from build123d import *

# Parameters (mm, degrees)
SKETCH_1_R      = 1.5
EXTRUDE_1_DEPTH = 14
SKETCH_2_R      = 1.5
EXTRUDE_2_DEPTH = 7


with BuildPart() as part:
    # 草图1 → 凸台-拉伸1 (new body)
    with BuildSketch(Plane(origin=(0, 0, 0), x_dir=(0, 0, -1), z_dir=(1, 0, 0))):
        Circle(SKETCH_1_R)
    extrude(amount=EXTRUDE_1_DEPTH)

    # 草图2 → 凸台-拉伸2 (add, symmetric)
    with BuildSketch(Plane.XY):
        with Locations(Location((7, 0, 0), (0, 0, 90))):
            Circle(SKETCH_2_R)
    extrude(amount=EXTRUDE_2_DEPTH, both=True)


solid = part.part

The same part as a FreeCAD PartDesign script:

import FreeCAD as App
import Part
import Sketcher
from FreeCAD import Vector
Q = App.Units.Quantity

doc = App.newDocument("Part")
params = doc.addObject("Spreadsheet::Sheet", "Params")
for row, (alias, value) in enumerate([
    ("sketch1_diameter", "3 mm"),
    ("pad1_length", "14 mm"),
    ("sketch2_diameter", "3 mm"),
    ("pad2_length", "14 mm"),
], start=1):
    params.set(f"A{row}", alias)
    params.set(f"B{row}", "=" + value)
    params.setAlias(f"B{row}", alias)

body = doc.addObject("PartDesign::Body", "Body")

# Sketch on YZ plane
sketch1 = body.newObject("Sketcher::SketchObject", "Sketch")
sketch1.AttachmentSupport = (doc.getObject("YZ_Plane"), [""])
sketch1.MapMode = "FlatFace"
sketch1.addGeometry(Part.Circle(Vector(0, 0, 0), Vector(0, 0, 1), 1.5), False)
sketch1.addConstraint([
    Sketcher.Constraint("Coincident", 0, 3, -1, 1),
    Sketcher.Constraint("Diameter", 0, Q("3 mm")),
])
sketch1.setExpression("Constraints[1]", "Params.sketch1_diameter")
pad1 = body.newObject("PartDesign::Pad", "Pad")
pad1.Profile = sketch1
pad1.setExpression("Length", "Params.pad1_length")

# Sketch on XY plane
sketch2 = body.newObject("Sketcher::SketchObject", "Sketch001")
sketch2.AttachmentSupport = (doc.getObject("XY_Plane"), [""])
sketch2.MapMode = "FlatFace"
sketch2.addGeometry(Part.Circle(Vector(7, 0, 0), Vector(0, 0, 1), 1.5), False)
sketch2.addConstraint([
    Sketcher.Constraint("PointOnObject", 0, 3, -1),
    Sketcher.Constraint("Diameter", 0, Q("3 mm")),
    Sketcher.Constraint("DistanceX", -1, 1, 0, 3, Q("7 mm")),
])
sketch2.setExpression("Constraints[1]", "Params.sketch2_diameter")
pad2 = body.newObject("PartDesign::Pad", "Pad001")
pad2.Profile = sketch2
pad2.setExpression("Length", "Params.pad2_length")
pad2.Midplane = True

doc.recompute()
